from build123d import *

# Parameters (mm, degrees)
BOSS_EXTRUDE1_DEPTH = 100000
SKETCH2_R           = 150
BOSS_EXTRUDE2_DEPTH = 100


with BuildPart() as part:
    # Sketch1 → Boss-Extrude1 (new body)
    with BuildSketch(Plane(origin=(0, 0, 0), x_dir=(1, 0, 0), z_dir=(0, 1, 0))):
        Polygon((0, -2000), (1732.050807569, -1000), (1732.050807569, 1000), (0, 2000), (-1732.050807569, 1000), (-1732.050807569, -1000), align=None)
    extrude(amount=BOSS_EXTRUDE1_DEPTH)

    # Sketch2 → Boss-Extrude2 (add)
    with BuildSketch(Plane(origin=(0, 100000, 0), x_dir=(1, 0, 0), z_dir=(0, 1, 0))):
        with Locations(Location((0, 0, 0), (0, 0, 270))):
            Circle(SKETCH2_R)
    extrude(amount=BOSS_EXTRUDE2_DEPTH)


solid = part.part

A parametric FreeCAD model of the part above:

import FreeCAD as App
import Part
import Sketcher
from FreeCAD import Vector
Q = App.Units.Quantity


def add_polygon(sketch, points):
    """Adds a closed chain of lines whose ends are joined by coincident constraints."""
    first, n = sketch.GeometryCount, len(points)
    for a, b in zip(points, points[1:] + points[:1]):
        sketch.addGeometry(Part.LineSegment(App.Vector(*a, 0), App.Vector(*b, 0)), False)
    for i in range(n):
        sketch.addConstraint(Sketcher.Constraint("Coincident", first + i, 2, first + (i + 1) % n, 1))

doc = App.newDocument("Part")
body = doc.addObject("PartDesign::Body", "Body")

# Sketch on XZ plane
sketch1 = body.newObject("Sketcher::SketchObject", "Sketch")
sketch1.AttachmentSupport = (doc.getObject("XZ_Plane"), [""])
sketch1.MapMode = "FlatFace"
add_polygon(sketch1, [(0, 2000), (1732, 1000), (1732, -1000), (0, -2000), (-1732, -1000), (-1732, 1000)])  # lines 0-5
sketch1.addConstraint(Sketcher.Constraint("Vertical", 1))
sketch1.addConstraint(Sketcher.Constraint("Vertical", 4))
sketch1.addConstraint(Sketcher.Constraint("Symmetric", 0, 2, 3, 2, -1, 1))
sketch1.addConstraint(Sketcher.Constraint("Symmetric", 2, 2, 5, 2, -1, 1))
sketch1.addConstraint(Sketcher.Constraint("PointOnObject", 2, 2, -2))
sketch1.addConstraint(Sketcher.Constraint("Parallel", 2, 5))
sketch1.addConstraint(Sketcher.Constraint("Horizontal", 1, 2, 3, 2))
sketch1.addConstraint(Sketcher.Constraint("DistanceY", 1, 2, 1, 1, 2000.0))
sketch1.addConstraint(Sketcher.Constraint("Angle", 0, Q("-30 deg")))
sketch1.addConstraint(Sketcher.Constraint("Distance", 0, 2000.0))
pad1 = body.newObject("PartDesign::Pad", "Pad")
pad1.Profile = sketch1
pad1.Length = 100000
pad1.Reversed = True

# Sketch on XZ plane
sketch2 = body.newObject("Sketcher::SketchObject", "Sketch001")
sketch2.AttachmentSupport = (doc.getObject("XZ_Plane"), [""])
sketch2.MapMode = "FlatFace"
sketch2.AttachmentOffset = App.Placement(Vector(0, 0, -100000), App.Rotation())
sketch2.addGeometry(Part.Circle(Vector(0, 0, 0), Vector(0, 0, 1), 150), False)
sketch2.addConstraint(Sketcher.Constraint("Coincident", 0, 3, -1, 1))
sketch2.addConstraint(Sketcher.Constraint("Diameter", 0, 300.0))
pad2 = body.newObject("PartDesign::Pad", "Pad001")
pad2.Profile = sketch2
pad2.Length = 100
pad2.Reversed = True

doc.recompute()
